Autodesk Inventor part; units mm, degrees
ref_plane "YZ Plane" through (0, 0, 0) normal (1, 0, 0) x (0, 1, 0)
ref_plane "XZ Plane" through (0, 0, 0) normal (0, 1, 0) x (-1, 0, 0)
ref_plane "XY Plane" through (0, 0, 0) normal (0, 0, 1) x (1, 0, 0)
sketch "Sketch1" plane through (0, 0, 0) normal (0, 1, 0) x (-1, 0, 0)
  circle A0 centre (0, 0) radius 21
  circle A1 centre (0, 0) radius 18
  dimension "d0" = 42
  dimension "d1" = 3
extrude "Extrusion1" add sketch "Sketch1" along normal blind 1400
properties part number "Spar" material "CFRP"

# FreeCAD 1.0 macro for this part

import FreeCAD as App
import Part
import Sketcher

V = App.Vector

doc = App.newDocument("Part")
body = doc.addObject("PartDesign::Body", "Body")

# Sketch on XZ plane
sketch1 = doc.addObject("Sketcher::SketchObject", "Sketch")
body.addObject(sketch1)
sketch1.AttachmentSupport = (doc.XZ_Plane, [""])
sketch1.MapMode = "FlatFace"
sketch1.addGeometry(Part.Circle(V(0, 0, 0), V(0, 0, 1), 21), False)
sketch1.addGeometry(Part.Circle(V(0, 0, 0), V(0, 0, 1), 18), False)
sketch1.addConstraint(Sketcher.Constraint("Coincident", 0, 3, -1, 1))
sketch1.addConstraint(Sketcher.Constraint("Coincident", 1, 3, -1, 1))
sketch1.addConstraint(Sketcher.Constraint("Diameter", 0, 42.0))
sketch1.addConstraint(Sketcher.Constraint("Diameter", 1, 36.0))
pad1 = doc.addObject("PartDesign::Pad", "Pad")
body.addObject(pad1)
pad1.Profile = sketch1
pad1.Length = 1400
pad1.Reversed = True

doc.recompute()
